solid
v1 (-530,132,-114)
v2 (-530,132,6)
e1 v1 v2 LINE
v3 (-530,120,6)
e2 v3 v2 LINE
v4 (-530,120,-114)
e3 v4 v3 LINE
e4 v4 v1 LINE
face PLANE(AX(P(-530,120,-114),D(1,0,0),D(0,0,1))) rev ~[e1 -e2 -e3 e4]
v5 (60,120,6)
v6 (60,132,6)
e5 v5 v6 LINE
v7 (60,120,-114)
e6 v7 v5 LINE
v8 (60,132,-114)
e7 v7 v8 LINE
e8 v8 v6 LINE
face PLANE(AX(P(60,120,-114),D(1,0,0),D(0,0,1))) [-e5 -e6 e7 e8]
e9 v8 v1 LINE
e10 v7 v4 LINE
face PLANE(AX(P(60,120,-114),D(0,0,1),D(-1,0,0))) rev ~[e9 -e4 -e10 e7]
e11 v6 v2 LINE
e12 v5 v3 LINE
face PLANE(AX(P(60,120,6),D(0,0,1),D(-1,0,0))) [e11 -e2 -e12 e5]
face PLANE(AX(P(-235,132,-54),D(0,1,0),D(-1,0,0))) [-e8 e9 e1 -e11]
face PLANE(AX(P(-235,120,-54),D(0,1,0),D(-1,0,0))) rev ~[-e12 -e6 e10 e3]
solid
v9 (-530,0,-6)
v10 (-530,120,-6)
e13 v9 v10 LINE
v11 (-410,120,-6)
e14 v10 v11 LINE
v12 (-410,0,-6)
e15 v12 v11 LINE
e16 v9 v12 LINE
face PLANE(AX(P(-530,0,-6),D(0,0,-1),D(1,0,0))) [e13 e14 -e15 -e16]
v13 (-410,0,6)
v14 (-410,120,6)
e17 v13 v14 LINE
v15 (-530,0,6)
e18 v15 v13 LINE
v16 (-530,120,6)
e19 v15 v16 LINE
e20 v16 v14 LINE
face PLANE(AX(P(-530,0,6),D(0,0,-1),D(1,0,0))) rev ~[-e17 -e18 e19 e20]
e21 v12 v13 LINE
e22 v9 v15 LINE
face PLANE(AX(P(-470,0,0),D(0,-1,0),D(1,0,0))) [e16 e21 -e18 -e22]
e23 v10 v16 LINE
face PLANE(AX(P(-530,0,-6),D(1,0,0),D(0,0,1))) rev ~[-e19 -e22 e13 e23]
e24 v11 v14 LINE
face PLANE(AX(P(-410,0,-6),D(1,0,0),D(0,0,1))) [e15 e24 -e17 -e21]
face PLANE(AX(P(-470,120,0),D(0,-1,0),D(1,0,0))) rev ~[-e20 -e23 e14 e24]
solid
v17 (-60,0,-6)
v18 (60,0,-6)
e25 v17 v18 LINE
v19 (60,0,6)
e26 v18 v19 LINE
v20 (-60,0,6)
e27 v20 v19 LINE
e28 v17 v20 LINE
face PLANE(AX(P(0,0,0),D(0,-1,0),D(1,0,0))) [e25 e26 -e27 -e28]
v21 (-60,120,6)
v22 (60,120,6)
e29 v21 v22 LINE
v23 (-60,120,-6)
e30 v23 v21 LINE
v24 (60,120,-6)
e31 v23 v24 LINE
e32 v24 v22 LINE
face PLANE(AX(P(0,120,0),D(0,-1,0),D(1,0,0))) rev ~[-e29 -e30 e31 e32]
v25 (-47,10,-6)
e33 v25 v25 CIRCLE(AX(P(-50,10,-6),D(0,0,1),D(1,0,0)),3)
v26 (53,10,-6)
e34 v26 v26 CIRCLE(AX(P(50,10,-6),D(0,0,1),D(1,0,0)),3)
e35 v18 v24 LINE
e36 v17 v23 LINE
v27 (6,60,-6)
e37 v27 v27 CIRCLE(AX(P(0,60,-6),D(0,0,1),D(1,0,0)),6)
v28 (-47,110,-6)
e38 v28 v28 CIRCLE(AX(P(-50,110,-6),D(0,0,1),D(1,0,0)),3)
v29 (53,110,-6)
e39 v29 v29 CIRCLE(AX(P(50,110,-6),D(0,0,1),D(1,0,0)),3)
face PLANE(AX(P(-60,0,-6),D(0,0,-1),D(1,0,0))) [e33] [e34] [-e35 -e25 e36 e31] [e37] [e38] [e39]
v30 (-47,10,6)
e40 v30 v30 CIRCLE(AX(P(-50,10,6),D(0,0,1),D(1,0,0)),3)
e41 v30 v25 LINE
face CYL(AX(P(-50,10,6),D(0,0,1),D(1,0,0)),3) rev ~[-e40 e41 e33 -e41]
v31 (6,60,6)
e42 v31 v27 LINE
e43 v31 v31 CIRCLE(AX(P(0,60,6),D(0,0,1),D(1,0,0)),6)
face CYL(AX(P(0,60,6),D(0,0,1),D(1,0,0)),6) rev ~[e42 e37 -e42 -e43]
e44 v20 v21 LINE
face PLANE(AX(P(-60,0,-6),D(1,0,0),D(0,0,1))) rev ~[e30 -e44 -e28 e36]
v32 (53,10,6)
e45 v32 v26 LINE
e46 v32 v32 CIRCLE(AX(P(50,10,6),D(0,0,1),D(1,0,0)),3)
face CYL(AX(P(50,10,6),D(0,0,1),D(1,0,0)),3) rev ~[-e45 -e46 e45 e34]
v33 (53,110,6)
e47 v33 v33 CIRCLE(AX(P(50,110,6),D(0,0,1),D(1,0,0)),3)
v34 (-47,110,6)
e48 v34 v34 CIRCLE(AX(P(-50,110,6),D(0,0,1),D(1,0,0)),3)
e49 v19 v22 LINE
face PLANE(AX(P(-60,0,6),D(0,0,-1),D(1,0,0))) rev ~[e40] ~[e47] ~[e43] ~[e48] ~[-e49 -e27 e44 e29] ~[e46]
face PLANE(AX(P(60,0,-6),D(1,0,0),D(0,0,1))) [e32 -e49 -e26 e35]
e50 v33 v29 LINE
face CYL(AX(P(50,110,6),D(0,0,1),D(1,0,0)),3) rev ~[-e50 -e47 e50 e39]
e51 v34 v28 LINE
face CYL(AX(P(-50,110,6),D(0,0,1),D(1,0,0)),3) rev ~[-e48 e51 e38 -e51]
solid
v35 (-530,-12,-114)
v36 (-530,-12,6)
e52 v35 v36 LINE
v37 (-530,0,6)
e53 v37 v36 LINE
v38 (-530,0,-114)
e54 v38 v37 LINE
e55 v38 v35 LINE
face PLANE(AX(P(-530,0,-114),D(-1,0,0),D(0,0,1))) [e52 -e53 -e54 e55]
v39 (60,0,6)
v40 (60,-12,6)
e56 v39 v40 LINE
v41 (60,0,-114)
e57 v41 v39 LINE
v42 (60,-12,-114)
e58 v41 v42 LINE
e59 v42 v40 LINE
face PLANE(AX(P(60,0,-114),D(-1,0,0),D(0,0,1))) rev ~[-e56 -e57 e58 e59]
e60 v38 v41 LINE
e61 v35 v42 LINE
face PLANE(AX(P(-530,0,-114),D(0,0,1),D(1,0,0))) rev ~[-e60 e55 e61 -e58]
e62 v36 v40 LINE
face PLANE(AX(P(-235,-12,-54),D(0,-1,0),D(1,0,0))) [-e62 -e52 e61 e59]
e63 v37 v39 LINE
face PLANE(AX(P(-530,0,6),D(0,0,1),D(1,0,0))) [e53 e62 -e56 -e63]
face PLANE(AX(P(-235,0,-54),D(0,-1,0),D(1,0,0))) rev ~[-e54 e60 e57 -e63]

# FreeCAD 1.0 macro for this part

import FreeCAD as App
import Part
import Sketcher
Q = App.Units.Quantity


def add_polygon(sketch, points):
    """Adds a closed chain of lines whose ends are joined by coincident constraints."""
    first, n = sketch.GeometryCount, len(points)
    for a, b in zip(points, points[1:] + points[:1]):
        sketch.addGeometry(Part.LineSegment(App.Vector(*a, 0), App.Vector(*b, 0)), False)
    for i in range(n):
        sketch.addConstraint(Sketcher.Constraint("Coincident", first + i, 2, first + (i + 1) % n, 1))

doc = App.newDocument("Part")
body = doc.addObject("PartDesign::Body", "Body")

# Sketch on XZ plane
sketch1 = body.newObject("Sketcher::SketchObject", "Sketch")
sketch1.AttachmentSupport = (doc.getObject("XZ_Plane"), [""])
sketch1.MapMode = "FlatFace"
add_polygon(sketch1, [(-60, 6), (-60, -6), (60, -6), (60, 6)])  # lines 0-3
sketch1.addConstraint([
    Sketcher.Constraint("Vertical", 0),
    Sketcher.Constraint("Horizontal", 1),
    Sketcher.Constraint("Vertical", 2),
    Sketcher.Constraint("Horizontal", 3),
    Sketcher.Constraint("Symmetric", 0, 2, 2, 2, -1, 1),
    Sketcher.Constraint("DistanceX", 1, 1, 1, 2, Q("120 mm")),
    Sketcher.Constraint("DistanceY", 0, 2, 0, 1, Q("12 mm")),
])
pad1 = body.newObject("PartDesign::Pad", "Pad")
pad1.Profile = sketch1
pad1.Length = 120
pad1.Reversed = True

# Sketch on XY plane
sketch2 = body.newObject("Sketcher::SketchObject", "Sketch001")
sketch2.AttachmentSupport = (doc.getObject("XY_Plane"), [""])
sketch2.MapMode = "FlatFace"
sketch2.AttachmentOffset = App.Placement(App.Vector(0, 0, 6), App.Rotation())
sketch2.addGeometry([
    Part.Circle(App.Vector(50, 110, 0), App.Vector(0, 0, 1), 3),  # 0
    Part.Circle(App.Vector(-50, 110, 0), App.Vector(0, 0, 1), 3),  # 1
    Part.Circle(App.Vector(-50, 10, 0), App.Vector(0, 0, 1), 3),  # 2
    Part.Circle(App.Vector(0, 60, 0), App.Vector(0, 0, 1), 6),  # 3
    Part.Circle(App.Vector(50, 10, 0), App.Vector(0, 0, 1), 3),  # 4
], False)
sketch2.addConstraint([
    Sketcher.Constraint("Equal", 0, 1),
    Sketcher.Constraint("Equal", 1, 2),
    Sketcher.Constraint("Equal", 2, 4),
    Sketcher.Constraint("Symmetric", 0, 3, 1, 3, -2),
    Sketcher.Constraint("Symmetric", 2, 3, 4, 3, -2),
    Sketcher.Constraint("PointOnObject", 3, 3, -2),
    Sketcher.Constraint("Vertical", 1, 3, 2, 3),
    Sketcher.Constraint("Diameter", 0, Q("6 mm")),
    Sketcher.Constraint("Diameter", 3, Q("12 mm")),
    Sketcher.Constraint("DistanceX", -1, 1, 0, 3, Q("50 mm")),
    Sketcher.Constraint("DistanceY", -1, 1, 0, 3, Q("110 mm")),
    Sketcher.Constraint("DistanceY", -1, 1, 2, 3, Q("10 mm")),
    Sketcher.Constraint("DistanceY", -1, 1, 3, 3, Q("60 mm")),
])
pocket1 = body.newObject("PartDesign::Pocket", "Pocket")
pocket1.Profile = sketch2
pocket1.Type = "ThroughAll"
body2 = doc.addObject("PartDesign::Body", "Body001")

# Sketch on XZ plane
sketch3 = body2.newObject("Sketcher::SketchObject", "Sketch002")
sketch3.AttachmentSupport = (doc.getObject("XZ_Plane001"), [""])
sketch3.MapMode = "FlatFace"
add_polygon(sketch3, [(-530, 6), (-530, -114), (60, -114), (60, 6)])  # lines 0-3
sketch3.addConstraint([
    Sketcher.Constraint("Vertical", 0),
    Sketcher.Constraint("Horizontal", 1),
    Sketcher.Constraint("Vertical", 2),
    Sketcher.Constraint("Horizontal", 3),
    Sketcher.Constraint("DistanceX", 1, 1, 1, 2, Q("590 mm")),
    Sketcher.Constraint("DistanceY", 0, 2, 0, 1, Q("120 mm")),
    Sketcher.Constraint("DistanceX", 0, 2, -1, 1, Q("530 mm")),
    Sketcher.Constraint("DistanceY", 0, 2, -1, 1, Q("114 mm")),
])
pad2 = body2.newObject("PartDesign::Pad", "Pad001")
pad2.Profile = sketch3
pad2.Length = 12
body3 = doc.addObject("PartDesign::Body", "Body002")

# Sketch on XZ plane
sketch4 = body3.newObject("Sketcher::SketchObject", "Sketch003")
sketch4.AttachmentSupport = (doc.getObject("XZ_Plane002"), [""])
sketch4.MapMode = "FlatFace"
add_polygon(sketch4, [(-530, 6), (-530, -6), (-410, -6), (-410, 6)])  # lines 0-3
sketch4.addConstraint([
    Sketcher.Constraint("Vertical", 0),
    Sketcher.Constraint("Horizontal", 1),
    Sketcher.Constraint("Vertical", 2),
    Sketcher.Constraint("Horizontal", 3),
    Sketcher.Constraint("DistanceX", 1, 1, 1, 2, Q("120 mm")),
    Sketcher.Constraint("DistanceY", 0, 2, 0, 1, Q("12 mm")),
    Sketcher.Constraint("DistanceX", 0, 2, -1, 1, Q("530 mm")),
    Sketcher.Constraint("DistanceY", 0, 2, -1, 1, Q("6 mm")),
])
pad3 = body3.newObject("PartDesign::Pad", "Pad002")
pad3.Profile = sketch4
pad3.Length = 120
pad3.Reversed = True
body4 = doc.addObject("PartDesign::Body", "Body003")

# Sketch on XZ plane
sketch5 = body4.newObject("Sketcher::SketchObject", "Sketch004")
sketch5.AttachmentSupport = (doc.getObject("XZ_Plane003"), [""])
sketch5.MapMode = "FlatFace"
sketch5.AttachmentOffset = App.Placement(App.Vector(0, 0, -120), App.Rotation())
add_polygon(sketch5, [(60, 6), (60, -114), (-530, -114), (-530, 6)])  # lines 0-3
sketch5.addConstraint([
    Sketcher.Constraint("Vertical", 0),
    Sketcher.Constraint("Horizontal", 1),
    Sketcher.Constraint("Vertical", 2),
    Sketcher.Constraint("Horizontal", 3),
    Sketcher.Constraint("DistanceX", 1, 2, 1, 1, Q("590 mm")),
    Sketcher.Constraint("DistanceY", 0, 2, 0, 1, Q("120 mm")),
    Sketcher.Constraint("DistanceX", -1, 1, 0, 2, Q("60 mm")),
    Sketcher.Constraint("DistanceY", 0, 2, -1, 1, Q("114 mm")),
])
pad4 = body4.newObject("PartDesign::Pad", "Pad003")
pad4.Profile = sketch5
pad4.Length = 12
pad4.Reversed = True

doc.recompute()
